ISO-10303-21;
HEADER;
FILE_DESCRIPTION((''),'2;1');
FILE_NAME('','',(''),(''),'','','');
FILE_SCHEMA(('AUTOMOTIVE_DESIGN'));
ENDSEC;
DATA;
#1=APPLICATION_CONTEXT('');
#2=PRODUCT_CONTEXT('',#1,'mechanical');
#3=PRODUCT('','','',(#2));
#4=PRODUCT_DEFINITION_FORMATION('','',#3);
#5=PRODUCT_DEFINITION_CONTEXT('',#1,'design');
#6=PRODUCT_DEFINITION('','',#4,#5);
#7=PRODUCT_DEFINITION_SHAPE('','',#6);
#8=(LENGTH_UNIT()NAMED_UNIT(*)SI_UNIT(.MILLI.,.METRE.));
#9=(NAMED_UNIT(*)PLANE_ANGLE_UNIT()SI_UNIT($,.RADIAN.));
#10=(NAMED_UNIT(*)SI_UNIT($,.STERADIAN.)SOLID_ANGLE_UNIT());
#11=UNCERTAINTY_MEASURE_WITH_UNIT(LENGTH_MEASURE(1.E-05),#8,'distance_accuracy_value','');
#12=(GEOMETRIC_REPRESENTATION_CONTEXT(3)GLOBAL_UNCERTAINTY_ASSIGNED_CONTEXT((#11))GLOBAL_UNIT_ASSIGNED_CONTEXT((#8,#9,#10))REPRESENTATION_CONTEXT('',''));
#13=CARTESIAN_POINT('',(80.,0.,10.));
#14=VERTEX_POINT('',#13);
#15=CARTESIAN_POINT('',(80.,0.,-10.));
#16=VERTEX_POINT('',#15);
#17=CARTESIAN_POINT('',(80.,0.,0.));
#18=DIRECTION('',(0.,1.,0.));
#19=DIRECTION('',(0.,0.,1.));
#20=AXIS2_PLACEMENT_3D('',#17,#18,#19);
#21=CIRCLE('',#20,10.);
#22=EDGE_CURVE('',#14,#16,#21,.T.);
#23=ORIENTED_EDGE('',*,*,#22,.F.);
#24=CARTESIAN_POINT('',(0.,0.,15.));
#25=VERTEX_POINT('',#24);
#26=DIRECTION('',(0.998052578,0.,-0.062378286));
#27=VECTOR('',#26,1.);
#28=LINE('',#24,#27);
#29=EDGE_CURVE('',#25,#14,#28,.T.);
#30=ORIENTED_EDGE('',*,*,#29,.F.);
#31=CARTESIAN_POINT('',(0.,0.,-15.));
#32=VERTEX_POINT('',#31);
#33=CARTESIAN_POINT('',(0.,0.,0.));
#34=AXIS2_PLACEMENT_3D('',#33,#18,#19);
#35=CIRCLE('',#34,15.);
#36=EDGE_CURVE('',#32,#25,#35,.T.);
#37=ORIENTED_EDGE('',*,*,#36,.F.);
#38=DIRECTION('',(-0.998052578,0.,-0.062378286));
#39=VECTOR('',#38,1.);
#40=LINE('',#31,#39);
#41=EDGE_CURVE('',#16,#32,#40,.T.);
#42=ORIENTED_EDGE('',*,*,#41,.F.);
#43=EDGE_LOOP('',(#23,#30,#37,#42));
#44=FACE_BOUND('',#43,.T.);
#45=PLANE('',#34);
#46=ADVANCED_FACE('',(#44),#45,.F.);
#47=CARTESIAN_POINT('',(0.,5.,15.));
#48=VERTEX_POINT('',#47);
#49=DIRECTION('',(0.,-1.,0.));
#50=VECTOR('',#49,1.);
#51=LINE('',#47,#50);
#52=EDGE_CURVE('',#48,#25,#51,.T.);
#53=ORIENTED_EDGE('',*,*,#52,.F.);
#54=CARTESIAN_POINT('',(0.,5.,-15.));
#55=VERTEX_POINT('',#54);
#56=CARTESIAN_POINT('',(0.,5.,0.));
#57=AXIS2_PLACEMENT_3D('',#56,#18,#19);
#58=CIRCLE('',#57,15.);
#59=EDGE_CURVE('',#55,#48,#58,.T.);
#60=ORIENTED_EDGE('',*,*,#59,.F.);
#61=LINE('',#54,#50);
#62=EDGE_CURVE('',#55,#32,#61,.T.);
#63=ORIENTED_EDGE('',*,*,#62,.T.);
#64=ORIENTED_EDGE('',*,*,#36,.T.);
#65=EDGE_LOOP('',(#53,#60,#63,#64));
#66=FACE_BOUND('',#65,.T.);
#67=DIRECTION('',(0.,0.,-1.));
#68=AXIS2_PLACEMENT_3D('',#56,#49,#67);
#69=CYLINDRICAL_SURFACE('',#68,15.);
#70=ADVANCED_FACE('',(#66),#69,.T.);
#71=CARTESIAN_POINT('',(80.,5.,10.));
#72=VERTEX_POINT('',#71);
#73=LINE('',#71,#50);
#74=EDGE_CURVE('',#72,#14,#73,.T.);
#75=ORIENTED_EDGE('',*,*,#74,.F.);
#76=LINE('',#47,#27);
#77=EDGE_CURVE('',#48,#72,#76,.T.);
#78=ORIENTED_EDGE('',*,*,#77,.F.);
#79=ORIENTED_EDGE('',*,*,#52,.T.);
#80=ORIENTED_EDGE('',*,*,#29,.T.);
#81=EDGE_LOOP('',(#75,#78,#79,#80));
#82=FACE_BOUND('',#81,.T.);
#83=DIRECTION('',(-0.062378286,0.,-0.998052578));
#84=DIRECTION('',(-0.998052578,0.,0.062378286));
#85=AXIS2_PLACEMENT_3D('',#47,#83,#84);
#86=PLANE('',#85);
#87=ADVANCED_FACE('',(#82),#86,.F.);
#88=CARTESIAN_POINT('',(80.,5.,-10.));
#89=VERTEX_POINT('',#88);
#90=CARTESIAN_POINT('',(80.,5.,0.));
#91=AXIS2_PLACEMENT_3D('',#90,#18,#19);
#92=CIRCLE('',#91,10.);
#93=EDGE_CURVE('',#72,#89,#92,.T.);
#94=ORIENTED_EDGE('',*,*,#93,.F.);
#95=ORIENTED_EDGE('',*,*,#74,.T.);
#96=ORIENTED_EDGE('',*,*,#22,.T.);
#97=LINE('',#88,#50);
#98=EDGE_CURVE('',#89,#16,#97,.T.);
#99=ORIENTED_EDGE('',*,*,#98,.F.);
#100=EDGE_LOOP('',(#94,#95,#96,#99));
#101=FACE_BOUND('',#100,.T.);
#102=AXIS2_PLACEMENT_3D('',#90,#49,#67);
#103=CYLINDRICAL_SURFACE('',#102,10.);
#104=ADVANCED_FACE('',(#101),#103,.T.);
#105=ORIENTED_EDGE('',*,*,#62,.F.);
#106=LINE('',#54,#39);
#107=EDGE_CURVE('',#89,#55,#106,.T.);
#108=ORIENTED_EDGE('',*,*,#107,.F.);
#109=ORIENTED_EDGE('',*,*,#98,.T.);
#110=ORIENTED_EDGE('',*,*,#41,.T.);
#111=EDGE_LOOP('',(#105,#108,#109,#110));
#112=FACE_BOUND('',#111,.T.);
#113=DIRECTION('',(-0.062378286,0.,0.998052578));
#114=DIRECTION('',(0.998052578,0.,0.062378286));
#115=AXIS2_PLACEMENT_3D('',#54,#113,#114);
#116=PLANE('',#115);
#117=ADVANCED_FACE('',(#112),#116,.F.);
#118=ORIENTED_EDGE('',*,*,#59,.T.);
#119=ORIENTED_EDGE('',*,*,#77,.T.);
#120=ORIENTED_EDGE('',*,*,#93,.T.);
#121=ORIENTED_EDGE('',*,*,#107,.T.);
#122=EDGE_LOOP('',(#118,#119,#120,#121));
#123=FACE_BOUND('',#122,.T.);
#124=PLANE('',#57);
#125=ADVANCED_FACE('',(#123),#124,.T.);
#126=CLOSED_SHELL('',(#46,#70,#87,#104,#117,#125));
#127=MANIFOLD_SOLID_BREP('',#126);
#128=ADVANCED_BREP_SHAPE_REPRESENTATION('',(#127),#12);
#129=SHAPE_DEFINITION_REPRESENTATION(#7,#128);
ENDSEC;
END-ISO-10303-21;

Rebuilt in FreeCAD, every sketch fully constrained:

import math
import FreeCAD as App
import Part
import Sketcher

V = App.Vector

doc = App.newDocument("Part")
params = doc.addObject("Spreadsheet::Sheet", "Params")
for row, (alias, value) in enumerate([
    ("sketch1_radius", "15 mm"),
    ("sketch1_radius2", "10 mm"),
    ("pad1_length", "5 mm"),
], start=1):
    params.set(f"A{row}", alias)
    params.set(f"B{row}", "=" + value)
    params.setAlias(f"B{row}", alias)

body = doc.addObject("PartDesign::Body", "Body")

# Sketch on XZ plane
sketch1 = doc.addObject("Sketcher::SketchObject", "Sketch")
body.addObject(sketch1)
sketch1.AttachmentSupport = (doc.XZ_Plane, [""])
sketch1.MapMode = "FlatFace"
sketch1.addGeometry(Part.LineSegment(V(80, -10, 0), V(0, -15, 0)), False)
sketch1.addGeometry(Part.ArcOfCircle(Part.Circle(V(0, 0, 0), V(0, 0, 1), 15), math.radians(90), math.radians(270)), False)
sketch1.addGeometry(Part.LineSegment(V(0, 15, 0), V(80, 10, 0)), False)
sketch1.addGeometry(Part.ArcOfCircle(Part.Circle(V(80, 0, 0), V(0, 0, 1), 10), math.radians(-90), math.radians(90)), False)
sketch1.addConstraint(Sketcher.Constraint("Coincident", 0, 2, 1, 2))
sketch1.addConstraint(Sketcher.Constraint("Coincident", 1, 1, 2, 1))
sketch1.addConstraint(Sketcher.Constraint("Coincident", 2, 2, 3, 2))
sketch1.addConstraint(Sketcher.Constraint("Coincident", 3, 1, 0, 1))
sketch1.addConstraint(Sketcher.Constraint("Coincident", 1, 3, -1, 1))
sketch1.addConstraint(Sketcher.Constraint("Symmetric", 2, 2, 3, 1, -1))
sketch1.addConstraint(Sketcher.Constraint("PointOnObject", 0, 2, -2))
sketch1.addConstraint(Sketcher.Constraint("PointOnObject", 1, 1, -2))
sketch1.addConstraint(Sketcher.Constraint("Vertical", 3, 3, 2, 2))
sketch1.addConstraint(Sketcher.Constraint("Radius", 1, 15.0))
sketch1.addConstraint(Sketcher.Constraint("Radius", 3, 10.0))
sketch1.addConstraint(Sketcher.Constraint("DistanceX", -1, 1, 3, 3, 80.0))
sketch1.setExpression("Constraints[9]", "Params.sketch1_radius")
sketch1.setExpression("Constraints[10]", "Params.sketch1_radius2")
pad1 = doc.addObject("PartDesign::Pad", "Pad")
body.addObject(pad1)
pad1.Profile = sketch1
pad1.setExpression("Length", "Params.pad1_length")
pad1.Reversed = True

doc.recompute()
